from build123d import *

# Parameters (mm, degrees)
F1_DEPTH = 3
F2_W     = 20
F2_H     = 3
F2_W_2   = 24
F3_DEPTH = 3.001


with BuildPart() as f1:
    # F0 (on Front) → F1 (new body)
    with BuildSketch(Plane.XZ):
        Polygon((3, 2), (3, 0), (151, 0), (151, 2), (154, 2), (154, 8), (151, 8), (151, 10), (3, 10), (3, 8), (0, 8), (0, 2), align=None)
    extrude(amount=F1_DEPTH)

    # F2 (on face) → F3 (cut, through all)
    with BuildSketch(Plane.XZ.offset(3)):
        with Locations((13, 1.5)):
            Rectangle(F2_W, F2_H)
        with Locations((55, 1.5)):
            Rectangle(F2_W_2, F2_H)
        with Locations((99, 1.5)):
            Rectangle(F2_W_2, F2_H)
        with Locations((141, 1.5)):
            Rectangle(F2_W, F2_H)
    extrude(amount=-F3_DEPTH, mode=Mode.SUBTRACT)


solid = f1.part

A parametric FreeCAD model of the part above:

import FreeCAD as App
import Part
import Sketcher

doc = App.newDocument("Part")
body = doc.addObject("PartDesign::Body", "Body")

# Sketch on XZ plane
sketch1 = body.newObject("Sketcher::SketchObject", "Sketch")
sketch1.AttachmentSupport = (doc.getObject("XZ_Plane"), [""])
sketch1.MapMode = "FlatFace"
sketch1.addGeometry([
    Part.LineSegment(App.Vector(3, 2, 0), App.Vector(3, 0, 0)),  # 0
    Part.LineSegment(App.Vector(3, 0, 0), App.Vector(151, 0, 0)),  # 1
    Part.LineSegment(App.Vector(151, 0, 0), App.Vector(151, 2, 0)),  # 2
    Part.LineSegment(App.Vector(151, 2, 0), App.Vector(154, 2, 0)),  # 3
    Part.LineSegment(App.Vector(154, 2, 0), App.Vector(154, 8, 0)),  # 4
    Part.LineSegment(App.Vector(154, 8, 0), App.Vector(151, 8, 0)),  # 5
    Part.LineSegment(App.Vector(151, 8, 0), App.Vector(151, 10, 0)),  # 6
    Part.LineSegment(App.Vector(151, 10, 0), App.Vector(3, 10, 0)),  # 7
    Part.LineSegment(App.Vector(3, 10, 0), App.Vector(3, 8, 0)),  # 8
    Part.LineSegment(App.Vector(3, 8, 0), App.Vector(0, 8, 0)),  # 9
    Part.LineSegment(App.Vector(0, 8, 0), App.Vector(0, 2, 0)),  # 10
    Part.LineSegment(App.Vector(0, 2, 0), App.Vector(3, 2, 0)),  # 11
], False)
sketch1.addConstraint([
    Sketcher.Constraint("Coincident", 0, 2, 1, 1),
    Sketcher.Constraint("Coincident", 1, 2, 2, 1),
    Sketcher.Constraint("Coincident", 2, 2, 3, 1),
    Sketcher.Constraint("Coincident", 3, 2, 4, 1),
    Sketcher.Constraint("Coincident", 4, 2, 5, 1),
    Sketcher.Constraint("Coincident", 5, 2, 6, 1),
    Sketcher.Constraint("Coincident", 6, 2, 7, 1),
    Sketcher.Constraint("Coincident", 7, 2, 8, 1),
    Sketcher.Constraint("Coincident", 8, 2, 9, 1),
    Sketcher.Constraint("Coincident", 9, 2, 10, 1),
    Sketcher.Constraint("Coincident", 10, 2, 11, 1),
    Sketcher.Constraint("Coincident", 11, 2, 0, 1),
    Sketcher.Constraint("Vertical", 0),
    Sketcher.Constraint("Horizontal", 1),
    Sketcher.Constraint("Vertical", 2),
    Sketcher.Constraint("Horizontal", 3),
    Sketcher.Constraint("Vertical", 4),
    Sketcher.Constraint("Horizontal", 5),
    Sketcher.Constraint("Vertical", 6),
    Sketcher.Constraint("Horizontal", 7),
    Sketcher.Constraint("Vertical", 8),
    Sketcher.Constraint("Horizontal", 9),
    Sketcher.Constraint("Vertical", 10),
    Sketcher.Constraint("Horizontal", 11),
    Sketcher.Constraint("PointOnObject", 0, 2, -1),
    Sketcher.Constraint("PointOnObject", 9, 2, -2),
    Sketcher.Constraint("Horizontal", 5, 2, 8, 2),
    Sketcher.Constraint("Horizontal", 3, 2, 10, 2),
    Sketcher.Constraint("Vertical", 2, 2, 5, 2),
    Sketcher.Constraint("Vertical", 0, 2, 7, 2),
    Sketcher.Constraint("Equal", 5, 9),
    Sketcher.Constraint("Equal", 2, 6),
    Sketcher.Constraint("DistanceX", 1, 1, 1, 2, 148.0),
    Sketcher.Constraint("DistanceX", 3, 1, 3, 2, 3.0),
    Sketcher.Constraint("DistanceY", 0, 2, 0, 1, 2.0),
    Sketcher.Constraint("DistanceY", 4, 1, 4, 2, 6.0),
])
pad1 = body.newObject("PartDesign::Pad", "Pad")
pad1.Profile = sketch1
pad1.Length = 3

# Sketch on XZ plane
sketch2 = body.newObject("Sketcher::SketchObject", "Sketch001")
sketch2.AttachmentSupport = (doc.getObject("XZ_Plane"), [""])
sketch2.MapMode = "FlatFace"
sketch2.AttachmentOffset = App.Placement(App.Vector(0, 0, 3), App.Rotation())
sketch2.addGeometry([
    Part.LineSegment(App.Vector(3, 3, 0), App.Vector(3, 0, 0)),  # 0
    Part.LineSegment(App.Vector(3, 0, 0), App.Vector(23, 0, 0)),  # 1
    Part.LineSegment(App.Vector(23, 0, 0), App.Vector(23, 3, 0)),  # 2
    Part.LineSegment(App.Vector(23, 3, 0), App.Vector(3, 3, 0)),  # 3
    Part.LineSegment(App.Vector(43, 3, 0), App.Vector(43, 0, 0)),  # 4
    Part.LineSegment(App.Vector(43, 0, 0), App.Vector(67, 0, 0)),  # 5
    Part.LineSegment(App.Vector(67, 0, 0), App.Vector(67, 3, 0)),  # 6
    Part.LineSegment(App.Vector(67, 3, 0), App.Vector(43, 3, 0)),  # 7
    Part.LineSegment(App.Vector(87, 3, 0), App.Vector(87, 0, 0)),  # 8
    Part.LineSegment(App.Vector(87, 0, 0), App.Vector(111, 0, 0)),  # 9
    Part.LineSegment(App.Vector(111, 0, 0), App.Vector(111, 3, 0)),  # 10
    Part.LineSegment(App.Vector(111, 3, 0), App.Vector(87, 3, 0)),  # 11
    Part.LineSegment(App.Vector(131, 3, 0), App.Vector(131, 0, 0)),  # 12
    Part.LineSegment(App.Vector(131, 0, 0), App.Vector(151, 0, 0)),  # 13
    Part.LineSegment(App.Vector(151, 0, 0), App.Vector(151, 3, 0)),  # 14
    Part.LineSegment(App.Vector(151, 3, 0), App.Vector(131, 3, 0)),  # 15
], False)
sketch2.addConstraint([
    Sketcher.Constraint("Coincident", 0, 2, 1, 1),
    Sketcher.Constraint("Coincident", 1, 2, 2, 1),
    Sketcher.Constraint("Coincident", 2, 2, 3, 1),
    Sketcher.Constraint("Coincident", 3, 2, 0, 1),
    Sketcher.Constraint("Coincident", 4, 2, 5, 1),
    Sketcher.Constraint("Coincident", 5, 2, 6, 1),
    Sketcher.Constraint("Coincident", 6, 2, 7, 1),
    Sketcher.Constraint("Coincident", 7, 2, 4, 1),
    Sketcher.Constraint("Coincident", 8, 2, 9, 1),
    Sketcher.Constraint("Coincident", 9, 2, 10, 1),
    Sketcher.Constraint("Coincident", 10, 2, 11, 1),
    Sketcher.Constraint("Coincident", 11, 2, 8, 1),
    Sketcher.Constraint("Coincident", 12, 2, 13, 1),
    Sketcher.Constraint("Coincident", 13, 2, 14, 1),
    Sketcher.Constraint("Coincident", 14, 2, 15, 1),
    Sketcher.Constraint("Coincident", 15, 2, 12, 1),
    Sketcher.Constraint("Vertical", 0),
    Sketcher.Constraint("Horizontal", 1),
    Sketcher.Constraint("Vertical", 2),
    Sketcher.Constraint("Horizontal", 3),
    Sketcher.Constraint("Vertical", 4),
    Sketcher.Constraint("Horizontal", 5),
    Sketcher.Constraint("Vertical", 6),
    Sketcher.Constraint("Horizontal", 7),
    Sketcher.Constraint("Vertical", 8),
    Sketcher.Constraint("Horizontal", 9),
    Sketcher.Constraint("Vertical", 10),
    Sketcher.Constraint("Horizontal", 11),
    Sketcher.Constraint("Vertical", 12),
    Sketcher.Constraint("Horizontal", 13),
    Sketcher.Constraint("Vertical", 14),
    Sketcher.Constraint("Horizontal", 15),
    Sketcher.Constraint("PointOnObject", 0, 2, -1),
    Sketcher.Constraint("PointOnObject", 4, 2, -1),
    Sketcher.Constraint("PointOnObject", 8, 2, -1),
    Sketcher.Constraint("PointOnObject", 12, 2, -1),
    Sketcher.Constraint("Horizontal", 3, 2, 6, 2),
    Sketcher.Constraint("Horizontal", 7, 2, 10, 2),
    Sketcher.Constraint("Horizontal", 11, 2, 14, 2),
    Sketcher.Constraint("Equal", 7, 9),
    Sketcher.Constraint("Equal", 3, 13),
    Sketcher.Constraint("DistanceX", 1, 1, 1, 2, 20.0),
    Sketcher.Constraint("DistanceX", 5, 1, 5, 2, 24.0),
    Sketcher.Constraint("DistanceY", 0, 2, 0, 1, 3.0),
    Sketcher.Constraint("DistanceX", -1, 1, 0, 2, 3.0),
    Sketcher.Constraint("DistanceX", -1, 1, 4, 2, 43.0),
    Sketcher.Constraint("DistanceX", -1, 1, 8, 2, 87.0),
    Sketcher.Constraint("DistanceX", -1, 1, 12, 2, 131.0),
])
pocket1 = body.newObject("PartDesign::Pocket", "Pocket")
pocket1.Profile = sketch2
pocket1.Type = "ThroughAll"

doc.recompute()
